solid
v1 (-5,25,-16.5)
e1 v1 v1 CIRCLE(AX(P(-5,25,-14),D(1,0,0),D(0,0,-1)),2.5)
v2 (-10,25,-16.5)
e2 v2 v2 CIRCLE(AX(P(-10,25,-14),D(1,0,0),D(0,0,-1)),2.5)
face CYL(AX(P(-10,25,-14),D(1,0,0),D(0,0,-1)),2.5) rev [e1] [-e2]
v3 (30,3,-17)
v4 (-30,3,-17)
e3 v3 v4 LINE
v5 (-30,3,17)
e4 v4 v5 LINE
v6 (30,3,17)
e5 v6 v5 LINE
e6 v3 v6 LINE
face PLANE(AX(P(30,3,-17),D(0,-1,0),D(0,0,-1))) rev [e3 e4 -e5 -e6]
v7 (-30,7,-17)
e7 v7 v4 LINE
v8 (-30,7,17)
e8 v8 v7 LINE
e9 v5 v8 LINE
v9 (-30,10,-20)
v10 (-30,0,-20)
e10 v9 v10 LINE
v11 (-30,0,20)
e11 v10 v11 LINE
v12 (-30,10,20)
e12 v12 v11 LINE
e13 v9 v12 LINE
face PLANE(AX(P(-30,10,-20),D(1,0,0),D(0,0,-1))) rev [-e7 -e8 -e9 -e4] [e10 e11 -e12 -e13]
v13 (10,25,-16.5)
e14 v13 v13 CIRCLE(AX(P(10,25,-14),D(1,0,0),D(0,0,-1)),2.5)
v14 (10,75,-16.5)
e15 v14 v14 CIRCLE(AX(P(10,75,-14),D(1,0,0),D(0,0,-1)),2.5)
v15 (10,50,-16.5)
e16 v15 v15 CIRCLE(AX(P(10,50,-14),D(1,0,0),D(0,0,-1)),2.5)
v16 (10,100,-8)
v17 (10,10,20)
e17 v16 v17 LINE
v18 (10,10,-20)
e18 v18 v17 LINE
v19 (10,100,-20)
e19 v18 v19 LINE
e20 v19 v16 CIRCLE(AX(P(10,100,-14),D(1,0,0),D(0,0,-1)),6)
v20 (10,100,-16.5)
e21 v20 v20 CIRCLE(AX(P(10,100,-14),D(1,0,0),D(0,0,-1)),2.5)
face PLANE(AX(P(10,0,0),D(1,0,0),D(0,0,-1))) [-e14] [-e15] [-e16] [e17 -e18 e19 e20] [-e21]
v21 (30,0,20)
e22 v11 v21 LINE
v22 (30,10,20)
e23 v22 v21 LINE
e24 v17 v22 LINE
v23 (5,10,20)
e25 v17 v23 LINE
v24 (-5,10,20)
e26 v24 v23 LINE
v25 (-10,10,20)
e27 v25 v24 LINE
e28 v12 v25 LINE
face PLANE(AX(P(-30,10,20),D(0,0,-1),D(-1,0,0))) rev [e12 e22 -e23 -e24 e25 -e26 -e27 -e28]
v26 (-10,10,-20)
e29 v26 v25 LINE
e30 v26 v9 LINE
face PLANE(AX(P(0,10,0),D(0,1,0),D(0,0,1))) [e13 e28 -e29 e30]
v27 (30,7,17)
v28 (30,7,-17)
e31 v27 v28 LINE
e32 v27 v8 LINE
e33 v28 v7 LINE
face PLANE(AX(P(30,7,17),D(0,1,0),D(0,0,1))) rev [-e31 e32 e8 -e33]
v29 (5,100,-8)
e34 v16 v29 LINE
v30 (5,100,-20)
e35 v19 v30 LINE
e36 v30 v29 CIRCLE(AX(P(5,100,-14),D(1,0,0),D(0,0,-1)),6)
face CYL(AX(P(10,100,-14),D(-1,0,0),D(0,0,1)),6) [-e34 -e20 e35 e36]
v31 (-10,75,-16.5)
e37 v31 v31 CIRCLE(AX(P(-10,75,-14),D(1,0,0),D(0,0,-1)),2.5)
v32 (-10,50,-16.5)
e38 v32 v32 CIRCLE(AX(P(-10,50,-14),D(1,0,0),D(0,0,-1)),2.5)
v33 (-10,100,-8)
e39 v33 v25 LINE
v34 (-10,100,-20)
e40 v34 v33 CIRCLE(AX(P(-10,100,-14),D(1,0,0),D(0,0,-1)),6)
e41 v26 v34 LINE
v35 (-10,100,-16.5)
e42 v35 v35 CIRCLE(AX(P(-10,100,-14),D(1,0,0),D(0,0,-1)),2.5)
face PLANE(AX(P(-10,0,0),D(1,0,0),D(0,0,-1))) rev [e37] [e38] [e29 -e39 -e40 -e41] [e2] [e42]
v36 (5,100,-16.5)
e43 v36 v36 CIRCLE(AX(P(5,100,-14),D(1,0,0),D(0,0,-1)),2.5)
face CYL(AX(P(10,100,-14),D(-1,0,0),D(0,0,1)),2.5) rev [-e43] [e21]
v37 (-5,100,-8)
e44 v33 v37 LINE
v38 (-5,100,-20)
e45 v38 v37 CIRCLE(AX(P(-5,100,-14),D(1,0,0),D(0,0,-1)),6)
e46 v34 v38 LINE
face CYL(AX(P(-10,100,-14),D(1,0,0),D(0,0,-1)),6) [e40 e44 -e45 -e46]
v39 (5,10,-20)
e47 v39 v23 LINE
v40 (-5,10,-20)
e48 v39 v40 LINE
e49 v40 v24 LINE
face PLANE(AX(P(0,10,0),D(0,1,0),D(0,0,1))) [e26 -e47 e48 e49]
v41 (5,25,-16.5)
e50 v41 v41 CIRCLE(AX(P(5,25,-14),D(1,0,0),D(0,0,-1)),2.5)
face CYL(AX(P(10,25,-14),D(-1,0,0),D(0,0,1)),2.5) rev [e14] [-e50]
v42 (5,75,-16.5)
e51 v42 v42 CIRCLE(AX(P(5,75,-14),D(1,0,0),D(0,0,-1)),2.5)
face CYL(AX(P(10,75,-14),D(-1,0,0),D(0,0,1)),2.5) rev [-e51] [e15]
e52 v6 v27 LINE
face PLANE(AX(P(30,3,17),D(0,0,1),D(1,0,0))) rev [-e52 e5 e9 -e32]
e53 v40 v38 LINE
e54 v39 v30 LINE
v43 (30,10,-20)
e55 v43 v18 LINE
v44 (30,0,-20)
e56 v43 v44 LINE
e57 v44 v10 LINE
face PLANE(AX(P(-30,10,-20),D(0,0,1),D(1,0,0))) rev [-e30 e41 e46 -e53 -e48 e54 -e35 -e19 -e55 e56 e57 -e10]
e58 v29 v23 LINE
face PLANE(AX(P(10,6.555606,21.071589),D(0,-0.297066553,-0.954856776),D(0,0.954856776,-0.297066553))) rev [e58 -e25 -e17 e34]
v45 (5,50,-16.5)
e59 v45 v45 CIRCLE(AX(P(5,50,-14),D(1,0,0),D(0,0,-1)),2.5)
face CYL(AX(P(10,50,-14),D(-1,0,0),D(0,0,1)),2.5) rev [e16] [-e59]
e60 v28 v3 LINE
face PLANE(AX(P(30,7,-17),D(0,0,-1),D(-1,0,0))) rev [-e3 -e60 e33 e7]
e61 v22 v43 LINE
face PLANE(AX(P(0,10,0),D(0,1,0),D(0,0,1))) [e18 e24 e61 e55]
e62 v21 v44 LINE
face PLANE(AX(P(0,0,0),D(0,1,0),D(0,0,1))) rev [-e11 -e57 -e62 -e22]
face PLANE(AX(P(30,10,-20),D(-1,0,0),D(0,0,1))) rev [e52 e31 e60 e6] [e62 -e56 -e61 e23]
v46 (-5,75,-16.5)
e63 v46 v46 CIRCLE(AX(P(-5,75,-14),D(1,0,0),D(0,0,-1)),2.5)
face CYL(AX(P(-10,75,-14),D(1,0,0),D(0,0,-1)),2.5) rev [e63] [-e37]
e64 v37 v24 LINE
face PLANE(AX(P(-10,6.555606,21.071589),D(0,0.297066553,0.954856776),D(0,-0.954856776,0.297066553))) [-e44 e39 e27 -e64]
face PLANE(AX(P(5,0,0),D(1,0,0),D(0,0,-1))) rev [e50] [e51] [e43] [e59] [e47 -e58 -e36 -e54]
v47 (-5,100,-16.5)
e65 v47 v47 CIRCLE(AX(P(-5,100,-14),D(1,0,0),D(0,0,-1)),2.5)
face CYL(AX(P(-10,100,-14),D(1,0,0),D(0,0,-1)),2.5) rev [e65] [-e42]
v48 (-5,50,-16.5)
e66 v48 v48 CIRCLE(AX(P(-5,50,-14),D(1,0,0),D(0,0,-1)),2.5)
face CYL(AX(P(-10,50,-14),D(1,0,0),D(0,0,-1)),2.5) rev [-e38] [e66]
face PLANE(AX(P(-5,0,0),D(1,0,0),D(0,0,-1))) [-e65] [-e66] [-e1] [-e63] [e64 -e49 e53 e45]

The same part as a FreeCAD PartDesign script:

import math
import FreeCAD as App
import Part
import Sketcher
Q = App.Units.Quantity


def add_polygon(sketch, points):
    """Adds a closed chain of lines whose ends are joined by coincident constraints."""
    first, n = sketch.GeometryCount, len(points)
    for a, b in zip(points, points[1:] + points[:1]):
        sketch.addGeometry(Part.LineSegment(App.Vector(*a, 0), App.Vector(*b, 0)), False)
    for i in range(n):
        sketch.addConstraint(Sketcher.Constraint("Coincident", first + i, 2, first + (i + 1) % n, 1))

doc = App.newDocument("Part")
body = doc.addObject("PartDesign::Body", "Body")

# Sketch on XZ plane
sketch1 = body.newObject("Sketcher::SketchObject", "Sketch")
sketch1.AttachmentSupport = (doc.getObject("XZ_Plane"), [""])
sketch1.MapMode = "FlatFace"
add_polygon(sketch1, [(-30, -20), (-30, 20), (30, 20), (30, -20)])  # lines 0-3
sketch1.addConstraint(Sketcher.Constraint("Vertical", 0))
sketch1.addConstraint(Sketcher.Constraint("Horizontal", 1))
sketch1.addConstraint(Sketcher.Constraint("Vertical", 2))
sketch1.addConstraint(Sketcher.Constraint("Horizontal", 3))
sketch1.addConstraint(Sketcher.Constraint("Symmetric", 0, 2, 2, 2, -1, 1))
sketch1.addConstraint(Sketcher.Constraint("DistanceX", 1, 1, 1, 2, Q("60 mm")))
sketch1.addConstraint(Sketcher.Constraint("DistanceY", 0, 1, 0, 2, Q("40 mm")))
pad1 = body.newObject("PartDesign::Pad", "Pad")
pad1.Profile = sketch1
pad1.Length = 10
pad1.Reversed = True

# Sketch on YZ plane
sketch2 = body.newObject("Sketcher::SketchObject", "Sketch001")
sketch2.AttachmentSupport = (doc.getObject("YZ_Plane"), [""])
sketch2.MapMode = "FlatFace"
sketch2.AttachmentOffset = App.Placement(App.Vector(0, 0, 5), App.Rotation())
sketch2.addGeometry(Part.LineSegment(App.Vector(10, -20, 0), App.Vector(100, -20, 0)), False)
sketch2.addGeometry(Part.ArcOfCircle(Part.Circle(App.Vector(100, -14, 0), App.Vector(0, 0, 1), 6), math.radians(-90), math.radians(90)), False)
sketch2.addGeometry(Part.LineSegment(App.Vector(100, -8, 0), App.Vector(10, 20, 0)), False)
sketch2.addGeometry(Part.LineSegment(App.Vector(10, 20, 0), App.Vector(10, -20, 0)), False)
sketch2.addGeometry(Part.Circle(App.Vector(25, -14, 0), App.Vector(0, 0, 1), 2.5), False)
sketch2.addGeometry(Part.Circle(App.Vector(50, -14, 0), App.Vector(0, 0, 1), 2.5), False)
sketch2.addGeometry(Part.Circle(App.Vector(75, -14, 0), App.Vector(0, 0, 1), 2.5), False)
sketch2.addGeometry(Part.Circle(App.Vector(100, -14, 0), App.Vector(0, 0, 1), 2.5), False)
sketch2.addConstraint(Sketcher.Constraint("Tangent", 0, 2, 1, 1))
sketch2.addConstraint(Sketcher.Constraint("Coincident", 1, 2, 2, 1))
sketch2.addConstraint(Sketcher.Constraint("Coincident", 2, 2, 3, 1))
sketch2.addConstraint(Sketcher.Constraint("Coincident", 3, 2, 0, 1))
sketch2.addConstraint(Sketcher.Constraint("Horizontal", 0))
sketch2.addConstraint(Sketcher.Constraint("Vertical", 3))
sketch2.addConstraint(Sketcher.Constraint("Coincident", 7, 3, 1, 3))
sketch2.addConstraint(Sketcher.Constraint("Equal", 4, 5))
sketch2.addConstraint(Sketcher.Constraint("Equal", 5, 6))
sketch2.addConstraint(Sketcher.Constraint("Equal", 6, 7))
sketch2.addConstraint(Sketcher.Constraint("Horizontal", 1, 3, 4, 3))
sketch2.addConstraint(Sketcher.Constraint("Horizontal", 4, 3, 5, 3))
sketch2.addConstraint(Sketcher.Constraint("Horizontal", 5, 3, 6, 3))
sketch2.addConstraint(Sketcher.Constraint("Vertical", 0, 2, 1, 2))
sketch2.addConstraint(Sketcher.Constraint("Diameter", 4, Q("5 mm")))
sketch2.addConstraint(Sketcher.Constraint("Radius", 1, Q("6 mm")))
sketch2.addConstraint(Sketcher.Constraint("DistanceX", 0, 1, 0, 2, Q("90 mm")))
sketch2.addConstraint(Sketcher.Constraint("DistanceY", 3, 2, 3, 1, Q("40 mm")))
sketch2.addConstraint(Sketcher.Constraint("DistanceX", -1, 1, 1, 3, Q("100 mm")))
sketch2.addConstraint(Sketcher.Constraint("DistanceY", 1, 3, -1, 1, Q("14 mm")))
sketch2.addConstraint(Sketcher.Constraint("DistanceX", -1, 1, 4, 3, Q("25 mm")))
sketch2.addConstraint(Sketcher.Constraint("DistanceX", -1, 1, 5, 3, Q("50 mm")))
sketch2.addConstraint(Sketcher.Constraint("DistanceX", -1, 1, 6, 3, Q("75 mm")))
pad2 = body.newObject("PartDesign::Pad", "Pad001")
pad2.Profile = sketch2
pad2.Length = 5

# Sketch on YZ plane
sketch3 = body.newObject("Sketcher::SketchObject", "Sketch002")
sketch3.AttachmentSupport = (doc.getObject("YZ_Plane"), [""])
sketch3.MapMode = "FlatFace"
sketch3.AttachmentOffset = App.Placement(App.Vector(0, 0, -10), App.Rotation())
sketch3.addGeometry(Part.LineSegment(App.Vector(10, -20, 0), App.Vector(100, -20, 0)), False)
sketch3.addGeometry(Part.ArcOfCircle(Part.Circle(App.Vector(100, -14, 0), App.Vector(0, 0, 1), 6), math.radians(-90), math.radians(90)), False)
sketch3.addGeometry(Part.LineSegment(App.Vector(100, -8, 0), App.Vector(10, 20, 0)), False)
sketch3.addGeometry(Part.LineSegment(App.Vector(10, 20, 0), App.Vector(10, -20, 0)), False)
sketch3.addGeometry(Part.Circle(App.Vector(25, -14, 0), App.Vector(0, 0, 1), 2.5), False)
sketch3.addGeometry(Part.Circle(App.Vector(50, -14, 0), App.Vector(0, 0, 1), 2.5), False)
sketch3.addGeometry(Part.Circle(App.Vector(75, -14, 0), App.Vector(0, 0, 1), 2.5), False)
sketch3.addGeometry(Part.Circle(App.Vector(100, -14, 0), App.Vector(0, 0, 1), 2.5), False)
sketch3.addConstraint(Sketcher.Constraint("Tangent", 0, 2, 1, 1))
sketch3.addConstraint(Sketcher.Constraint("Coincident", 1, 2, 2, 1))
sketch3.addConstraint(Sketcher.Constraint("Coincident", 2, 2, 3, 1))
sketch3.addConstraint(Sketcher.Constraint("Coincident", 3, 2, 0, 1))
sketch3.addConstraint(Sketcher.Constraint("Horizontal", 0))
sketch3.addConstraint(Sketcher.Constraint("Vertical", 3))
sketch3.addConstraint(Sketcher.Constraint("Coincident", 7, 3, 1, 3))
sketch3.addConstraint(Sketcher.Constraint("Equal", 4, 5))
sketch3.addConstraint(Sketcher.Constraint("Equal", 5, 6))
sketch3.addConstraint(Sketcher.Constraint("Equal", 6, 7))
sketch3.addConstraint(Sketcher.Constraint("Horizontal", 1, 3, 4, 3))
sketch3.addConstraint(Sketcher.Constraint("Horizontal", 4, 3, 5, 3))
sketch3.addConstraint(Sketcher.Constraint("Horizontal", 5, 3, 6, 3))
sketch3.addConstraint(Sketcher.Constraint("Vertical", 0, 2, 1, 2))
sketch3.addConstraint(Sketcher.Constraint("Diameter", 4, Q("5 mm")))
sketch3.addConstraint(Sketcher.Constraint("Radius", 1, Q("6 mm")))
sketch3.addConstraint(Sketcher.Constraint("DistanceX", 0, 1, 0, 2, Q("90 mm")))
sketch3.addConstraint(Sketcher.Constraint("DistanceY", 3, 2, 3, 1, Q("40 mm")))
sketch3.addConstraint(Sketcher.Constraint("DistanceX", -1, 1, 1, 3, Q("100 mm")))
sketch3.addConstraint(Sketcher.Constraint("DistanceY", 1, 3, -1, 1, Q("14 mm")))
sketch3.addConstraint(Sketcher.Constraint("DistanceX", -1, 1, 4, 3, Q("25 mm")))
sketch3.addConstraint(Sketcher.Constraint("DistanceX", -1, 1, 5, 3, Q("50 mm")))
sketch3.addConstraint(Sketcher.Constraint("DistanceX", -1, 1, 6, 3, Q("75 mm")))
pad3 = body.newObject("PartDesign::Pad", "Pad002")
pad3.Profile = sketch3
pad3.Length = 5

# Sketch on YZ plane
sketch4 = body.newObject("Sketcher::SketchObject", "Sketch003")
sketch4.AttachmentSupport = (doc.getObject("YZ_Plane"), [""])
sketch4.MapMode = "FlatFace"
sketch4.AttachmentOffset = App.Placement(App.Vector(0, 0, -30), App.Rotation())
add_polygon(sketch4, [(7, -17), (3, -17), (3, 17), (7, 17)])  # lines 0-3
sketch4.addConstraint(Sketcher.Constraint("Horizontal", 0))
sketch4.addConstraint(Sketcher.Constraint("Vertical", 1))
sketch4.addConstraint(Sketcher.Constraint("Horizontal", 2))
sketch4.addConstraint(Sketcher.Constraint("Vertical", 3))
sketch4.addConstraint(Sketcher.Constraint("DistanceX", 0, 2, 0, 1, Q("4 mm")))
sketch4.addConstraint(Sketcher.Constraint("DistanceY", 1, 1, 1, 2, Q("34 mm")))
sketch4.addConstraint(Sketcher.Constraint("DistanceX", -1, 1, 0, 2, Q("3 mm")))
sketch4.addConstraint(Sketcher.Constraint("DistanceY", 0, 2, -1, 1, Q("17 mm")))
pocket1 = body.newObject("PartDesign::Pocket", "Pocket")
pocket1.Profile = sketch4
pocket1.Type = "ThroughAll"
pocket1.Reversed = True

doc.recompute()
